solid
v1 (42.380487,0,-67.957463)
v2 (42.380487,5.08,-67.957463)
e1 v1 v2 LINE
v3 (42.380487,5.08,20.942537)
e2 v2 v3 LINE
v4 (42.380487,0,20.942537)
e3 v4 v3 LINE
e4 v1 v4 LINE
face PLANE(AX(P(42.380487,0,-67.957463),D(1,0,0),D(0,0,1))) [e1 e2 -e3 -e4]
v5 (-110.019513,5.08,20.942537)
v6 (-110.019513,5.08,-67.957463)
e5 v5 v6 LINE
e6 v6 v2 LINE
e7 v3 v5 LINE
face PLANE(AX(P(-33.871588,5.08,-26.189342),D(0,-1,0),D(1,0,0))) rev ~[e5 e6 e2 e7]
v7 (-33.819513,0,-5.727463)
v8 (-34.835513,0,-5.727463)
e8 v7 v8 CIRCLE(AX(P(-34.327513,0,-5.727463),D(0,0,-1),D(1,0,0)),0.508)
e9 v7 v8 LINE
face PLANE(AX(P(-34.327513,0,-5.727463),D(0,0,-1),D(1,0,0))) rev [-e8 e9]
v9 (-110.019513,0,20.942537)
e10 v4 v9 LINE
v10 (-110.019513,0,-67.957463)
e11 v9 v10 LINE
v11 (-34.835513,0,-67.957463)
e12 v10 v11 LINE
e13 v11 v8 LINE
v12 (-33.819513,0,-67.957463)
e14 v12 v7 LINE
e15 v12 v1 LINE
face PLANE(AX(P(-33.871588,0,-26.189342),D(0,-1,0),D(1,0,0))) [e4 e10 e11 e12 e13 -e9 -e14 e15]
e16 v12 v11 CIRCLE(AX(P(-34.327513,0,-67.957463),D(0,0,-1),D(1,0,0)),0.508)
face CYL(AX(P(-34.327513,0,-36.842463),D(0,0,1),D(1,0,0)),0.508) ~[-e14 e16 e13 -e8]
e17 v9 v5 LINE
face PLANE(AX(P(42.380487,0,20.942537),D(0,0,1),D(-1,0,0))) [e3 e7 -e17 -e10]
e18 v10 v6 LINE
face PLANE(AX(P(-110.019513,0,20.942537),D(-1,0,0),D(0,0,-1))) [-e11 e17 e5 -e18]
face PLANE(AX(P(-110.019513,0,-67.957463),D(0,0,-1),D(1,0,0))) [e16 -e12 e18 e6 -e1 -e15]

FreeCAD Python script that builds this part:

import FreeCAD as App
import Part
import Sketcher

V = App.Vector
Q = App.Units.Quantity

doc = App.newDocument("Part")
body = doc.addObject("PartDesign::Body", "Body")

sketch1 = doc.addObject("Sketcher::SketchObject", "Sketch")
body.addObject(sketch1)
sketch1.AttachmentSupport = (doc.XZ_Plane, [""])
sketch1.MapMode = "FlatFace"
sketch1.addGeometry([
    Part.LineSegment(V(42.380487, 20.942537, 0), V(-110.019513, 20.942537, 0)),
    Part.LineSegment(V(-110.019513, 20.942537, 0), V(-110.019513, -67.957463, 0)),
    Part.LineSegment(V(-110.019513, -67.957463, 0), V(42.380487, -67.957463, 0)),
    Part.LineSegment(V(42.380487, -67.957463, 0), V(42.380487, 20.942537, 0)),
], False)
sketch1.addConstraint([
    Sketcher.Constraint("Coincident", 0, 2, 1, 1),
    Sketcher.Constraint("Coincident", 1, 2, 2, 1),
    Sketcher.Constraint("Coincident", 2, 2, 3, 1),
    Sketcher.Constraint("Coincident", 3, 2, 0, 1),
    Sketcher.Constraint("Horizontal", 0),
    Sketcher.Constraint("Vertical", 1),
    Sketcher.Constraint("Horizontal", 2),
    Sketcher.Constraint("Vertical", 3),
    Sketcher.Constraint("DistanceX", 0, 2, 0, 1, Q("6 in")),
    Sketcher.Constraint("DistanceY", 1, 2, 1, 1, Q("3.5 in")),
    Sketcher.Constraint("DistanceX", 0, 2, -1, 1, Q("110.019513 mm")),
    Sketcher.Constraint("DistanceY", -1, 1, 0, 2, Q("20.942537 mm")),
])
pad1 = doc.addObject("PartDesign::Pad", "Pad")
body.addObject(pad1)
pad1.Profile = sketch1
pad1.Length = Q("0.2 in")
pad1.Reversed = True

sketch2 = doc.addObject("Sketcher::SketchObject", "Sketch001")
body.addObject(sketch2)
sketch2.AttachmentSupport = (doc.XZ_Plane, [""])
sketch2.MapMode = "FlatFace"
sketch2.addGeometry([
    Part.LineSegment(V(-34.327513, -5.727463, 0), V(-34.327513, -67.957463, 0)),
    Part.LineSegment(V(-34.327513, -67.957463, 0), V(-33.819513, -67.957463, 0)),
    Part.LineSegment(V(-33.819513, -67.957463, 0), V(-33.819513, -5.727463, 0)),
    Part.LineSegment(V(-33.819513, -5.727463, 0), V(-34.327513, -5.727463, 0)),
], False)
sketch2.addGeometry(Part.LineSegment(V(-34.327513, -5.727463, 0), V(-34.327513, -67.957463, 0)), True)
sketch2.addConstraint([
    Sketcher.Constraint("Coincident", 0, 2, 1, 1),
    Sketcher.Constraint("Coincident", 1, 2, 2, 1),
    Sketcher.Constraint("Coincident", 2, 2, 3, 1),
    Sketcher.Constraint("Coincident", 3, 2, 0, 1),
    Sketcher.Constraint("Vertical", 0),
    Sketcher.Constraint("Horizontal", 1),
    Sketcher.Constraint("Vertical", 2),
    Sketcher.Constraint("Horizontal", 3),
    Sketcher.Constraint("Vertical", 4),
    Sketcher.Constraint("Coincident", 4, 1, 3, 2),
    Sketcher.Constraint("Horizontal", 1, 2, 4, 2),
    Sketcher.Constraint("DistanceX", 1, 1, 1, 2, Q("0.02 in")),
    Sketcher.Constraint("DistanceY", 0, 2, 0, 1, Q("2.45 in")),
    Sketcher.Constraint("DistanceX", 0, 2, -1, 1, Q("34.327513 mm")),
    Sketcher.Constraint("DistanceY", 0, 2, -1, 1, Q("67.957463 mm")),
])
revolution = doc.addObject("PartDesign::Revolution", "Revolution")
body.addObject(revolution)
revolution.Profile = sketch2
revolution.ReferenceAxis = (sketch2, ["Axis0"])
revolution.Angle = 360

doc.recompute()
